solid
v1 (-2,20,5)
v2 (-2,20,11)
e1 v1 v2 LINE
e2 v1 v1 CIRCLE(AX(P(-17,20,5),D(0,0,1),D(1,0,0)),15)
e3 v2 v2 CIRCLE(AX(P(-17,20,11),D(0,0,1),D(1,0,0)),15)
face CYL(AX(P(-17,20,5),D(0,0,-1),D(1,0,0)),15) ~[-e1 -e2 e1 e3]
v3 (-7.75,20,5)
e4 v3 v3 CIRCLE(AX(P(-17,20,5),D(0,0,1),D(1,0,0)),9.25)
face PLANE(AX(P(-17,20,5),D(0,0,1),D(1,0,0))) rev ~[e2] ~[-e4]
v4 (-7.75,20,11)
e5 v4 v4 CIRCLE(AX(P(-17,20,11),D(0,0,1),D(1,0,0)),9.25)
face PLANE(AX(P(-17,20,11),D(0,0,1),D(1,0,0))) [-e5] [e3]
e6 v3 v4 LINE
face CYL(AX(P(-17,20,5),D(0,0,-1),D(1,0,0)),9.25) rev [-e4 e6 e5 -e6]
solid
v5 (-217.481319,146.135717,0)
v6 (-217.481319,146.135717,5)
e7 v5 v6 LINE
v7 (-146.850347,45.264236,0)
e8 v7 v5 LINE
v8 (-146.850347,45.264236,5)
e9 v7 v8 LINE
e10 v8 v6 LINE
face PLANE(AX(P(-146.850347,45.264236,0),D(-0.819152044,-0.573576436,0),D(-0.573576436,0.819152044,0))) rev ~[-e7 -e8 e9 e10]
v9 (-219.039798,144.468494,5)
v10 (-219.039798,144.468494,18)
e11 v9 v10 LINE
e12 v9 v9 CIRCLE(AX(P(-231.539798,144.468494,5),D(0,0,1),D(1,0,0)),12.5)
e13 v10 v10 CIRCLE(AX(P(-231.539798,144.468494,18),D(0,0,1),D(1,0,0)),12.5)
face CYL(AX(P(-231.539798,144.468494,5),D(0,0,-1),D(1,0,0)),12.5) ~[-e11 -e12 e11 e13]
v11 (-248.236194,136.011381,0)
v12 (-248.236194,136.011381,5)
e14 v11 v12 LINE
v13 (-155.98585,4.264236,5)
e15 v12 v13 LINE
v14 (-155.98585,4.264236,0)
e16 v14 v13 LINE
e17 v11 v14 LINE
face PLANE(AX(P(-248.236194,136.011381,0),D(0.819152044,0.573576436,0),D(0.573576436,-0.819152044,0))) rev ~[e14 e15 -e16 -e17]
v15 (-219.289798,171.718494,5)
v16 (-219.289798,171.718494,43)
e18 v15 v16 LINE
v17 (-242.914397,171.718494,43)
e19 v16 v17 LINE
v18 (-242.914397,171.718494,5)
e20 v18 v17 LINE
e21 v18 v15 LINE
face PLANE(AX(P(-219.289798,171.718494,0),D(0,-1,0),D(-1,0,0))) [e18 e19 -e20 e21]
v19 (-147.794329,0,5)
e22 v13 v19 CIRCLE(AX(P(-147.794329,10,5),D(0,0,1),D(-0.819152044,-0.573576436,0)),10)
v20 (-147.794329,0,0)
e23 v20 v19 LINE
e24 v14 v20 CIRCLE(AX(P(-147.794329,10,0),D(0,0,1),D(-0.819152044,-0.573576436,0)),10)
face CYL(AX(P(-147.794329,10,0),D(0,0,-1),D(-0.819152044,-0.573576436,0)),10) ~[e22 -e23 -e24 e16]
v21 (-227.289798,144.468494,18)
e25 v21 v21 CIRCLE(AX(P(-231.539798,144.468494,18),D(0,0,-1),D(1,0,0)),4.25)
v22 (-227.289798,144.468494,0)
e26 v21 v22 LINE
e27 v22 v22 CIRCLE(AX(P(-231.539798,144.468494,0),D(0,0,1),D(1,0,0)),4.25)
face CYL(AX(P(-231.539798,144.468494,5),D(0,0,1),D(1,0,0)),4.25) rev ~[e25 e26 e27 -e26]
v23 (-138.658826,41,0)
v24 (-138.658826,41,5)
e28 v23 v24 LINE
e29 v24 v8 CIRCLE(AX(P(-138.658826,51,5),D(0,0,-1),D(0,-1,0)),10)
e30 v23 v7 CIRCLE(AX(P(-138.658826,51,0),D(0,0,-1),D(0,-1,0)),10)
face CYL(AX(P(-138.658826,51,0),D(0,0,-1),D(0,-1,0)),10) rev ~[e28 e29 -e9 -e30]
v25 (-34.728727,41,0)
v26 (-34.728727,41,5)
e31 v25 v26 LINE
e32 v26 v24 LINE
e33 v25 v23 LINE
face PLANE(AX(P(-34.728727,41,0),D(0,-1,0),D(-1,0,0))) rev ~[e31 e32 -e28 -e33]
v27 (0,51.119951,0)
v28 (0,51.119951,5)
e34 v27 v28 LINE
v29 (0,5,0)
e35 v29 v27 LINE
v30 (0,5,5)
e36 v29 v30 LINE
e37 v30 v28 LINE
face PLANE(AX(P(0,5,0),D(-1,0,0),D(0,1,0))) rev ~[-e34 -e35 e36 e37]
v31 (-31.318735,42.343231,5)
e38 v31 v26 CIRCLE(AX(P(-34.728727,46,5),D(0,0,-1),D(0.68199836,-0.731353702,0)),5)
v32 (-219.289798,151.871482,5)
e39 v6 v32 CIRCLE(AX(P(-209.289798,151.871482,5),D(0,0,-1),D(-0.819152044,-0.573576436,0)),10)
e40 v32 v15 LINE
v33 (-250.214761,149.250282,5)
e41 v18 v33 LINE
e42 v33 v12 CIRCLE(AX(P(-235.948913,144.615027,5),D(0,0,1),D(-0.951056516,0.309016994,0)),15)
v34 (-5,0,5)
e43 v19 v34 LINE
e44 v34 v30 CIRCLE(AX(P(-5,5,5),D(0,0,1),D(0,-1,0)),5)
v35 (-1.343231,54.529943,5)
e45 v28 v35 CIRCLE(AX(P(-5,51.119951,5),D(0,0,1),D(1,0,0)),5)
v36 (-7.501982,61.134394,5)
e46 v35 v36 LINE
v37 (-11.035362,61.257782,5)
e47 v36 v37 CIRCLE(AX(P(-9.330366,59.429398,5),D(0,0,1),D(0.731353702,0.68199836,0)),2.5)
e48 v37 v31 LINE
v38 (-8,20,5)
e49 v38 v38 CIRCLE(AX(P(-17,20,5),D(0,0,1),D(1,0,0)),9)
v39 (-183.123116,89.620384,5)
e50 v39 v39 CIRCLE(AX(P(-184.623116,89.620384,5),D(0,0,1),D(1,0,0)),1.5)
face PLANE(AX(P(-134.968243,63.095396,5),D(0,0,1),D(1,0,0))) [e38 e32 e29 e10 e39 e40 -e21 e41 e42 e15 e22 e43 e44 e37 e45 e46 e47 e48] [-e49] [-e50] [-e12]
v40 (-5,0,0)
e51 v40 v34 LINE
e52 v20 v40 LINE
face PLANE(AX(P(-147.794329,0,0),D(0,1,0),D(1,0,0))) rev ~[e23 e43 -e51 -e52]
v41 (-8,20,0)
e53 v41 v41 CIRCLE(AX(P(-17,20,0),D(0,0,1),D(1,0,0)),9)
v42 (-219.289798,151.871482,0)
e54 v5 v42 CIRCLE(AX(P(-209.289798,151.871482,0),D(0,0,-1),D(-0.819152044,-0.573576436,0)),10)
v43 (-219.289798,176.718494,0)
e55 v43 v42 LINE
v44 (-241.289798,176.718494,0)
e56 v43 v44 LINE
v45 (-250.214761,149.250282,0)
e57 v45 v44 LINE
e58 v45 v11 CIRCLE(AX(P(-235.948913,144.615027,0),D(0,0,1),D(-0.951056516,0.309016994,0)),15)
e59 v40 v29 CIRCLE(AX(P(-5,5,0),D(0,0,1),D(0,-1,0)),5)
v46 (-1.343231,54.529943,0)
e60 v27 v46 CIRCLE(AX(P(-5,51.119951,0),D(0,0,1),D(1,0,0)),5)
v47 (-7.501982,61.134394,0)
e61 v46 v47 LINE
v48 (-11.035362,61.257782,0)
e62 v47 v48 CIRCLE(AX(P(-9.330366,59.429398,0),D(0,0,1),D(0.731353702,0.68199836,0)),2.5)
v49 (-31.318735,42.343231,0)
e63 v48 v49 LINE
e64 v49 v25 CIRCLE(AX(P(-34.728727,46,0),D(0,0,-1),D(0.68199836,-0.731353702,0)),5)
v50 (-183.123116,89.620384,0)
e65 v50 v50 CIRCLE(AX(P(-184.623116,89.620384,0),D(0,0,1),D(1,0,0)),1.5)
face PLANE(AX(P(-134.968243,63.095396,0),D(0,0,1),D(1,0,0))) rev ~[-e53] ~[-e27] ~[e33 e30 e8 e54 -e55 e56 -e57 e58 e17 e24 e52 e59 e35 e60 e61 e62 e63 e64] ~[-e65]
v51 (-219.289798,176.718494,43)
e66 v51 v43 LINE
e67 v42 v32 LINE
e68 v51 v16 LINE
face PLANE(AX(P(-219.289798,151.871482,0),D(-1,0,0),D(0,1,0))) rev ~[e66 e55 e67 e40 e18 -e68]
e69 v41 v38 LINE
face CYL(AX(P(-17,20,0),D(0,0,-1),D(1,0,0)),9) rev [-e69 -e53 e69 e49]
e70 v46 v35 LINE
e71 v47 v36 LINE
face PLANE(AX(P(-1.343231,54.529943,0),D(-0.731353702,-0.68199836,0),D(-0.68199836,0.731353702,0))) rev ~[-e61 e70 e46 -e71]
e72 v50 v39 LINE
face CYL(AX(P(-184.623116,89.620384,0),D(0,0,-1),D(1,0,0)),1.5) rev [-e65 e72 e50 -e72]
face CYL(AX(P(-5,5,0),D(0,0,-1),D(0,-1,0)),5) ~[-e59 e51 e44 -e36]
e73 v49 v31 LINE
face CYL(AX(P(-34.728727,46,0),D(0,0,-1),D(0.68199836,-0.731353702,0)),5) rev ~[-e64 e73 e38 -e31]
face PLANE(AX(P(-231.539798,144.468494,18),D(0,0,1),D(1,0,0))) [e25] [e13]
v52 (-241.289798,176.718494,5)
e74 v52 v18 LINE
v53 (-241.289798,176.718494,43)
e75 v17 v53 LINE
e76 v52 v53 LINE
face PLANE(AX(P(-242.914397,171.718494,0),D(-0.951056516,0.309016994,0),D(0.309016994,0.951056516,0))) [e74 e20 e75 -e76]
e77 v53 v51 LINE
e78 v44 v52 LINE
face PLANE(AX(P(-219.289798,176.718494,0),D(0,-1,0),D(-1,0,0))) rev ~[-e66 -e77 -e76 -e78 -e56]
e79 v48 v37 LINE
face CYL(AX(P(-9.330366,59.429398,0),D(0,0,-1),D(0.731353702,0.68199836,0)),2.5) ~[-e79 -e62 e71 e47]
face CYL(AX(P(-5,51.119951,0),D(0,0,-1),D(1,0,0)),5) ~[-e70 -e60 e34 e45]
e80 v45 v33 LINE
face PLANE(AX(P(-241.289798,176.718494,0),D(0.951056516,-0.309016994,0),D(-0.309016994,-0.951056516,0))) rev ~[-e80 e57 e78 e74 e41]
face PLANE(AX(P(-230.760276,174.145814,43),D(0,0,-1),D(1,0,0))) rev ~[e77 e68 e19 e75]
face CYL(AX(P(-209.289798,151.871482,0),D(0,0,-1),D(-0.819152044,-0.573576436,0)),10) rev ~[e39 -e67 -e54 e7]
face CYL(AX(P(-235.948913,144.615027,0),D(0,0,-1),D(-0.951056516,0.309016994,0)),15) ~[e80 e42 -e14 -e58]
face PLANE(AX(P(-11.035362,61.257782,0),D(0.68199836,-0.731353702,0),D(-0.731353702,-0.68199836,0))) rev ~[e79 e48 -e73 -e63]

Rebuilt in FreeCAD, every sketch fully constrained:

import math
import FreeCAD as App
import Part
import Sketcher

V = App.Vector
Q = App.Units.Quantity


def add_polygon(sketch, points):
    """Adds a closed chain of lines whose ends are joined by coincident constraints."""
    first, n = sketch.GeometryCount, len(points)
    for a, b in zip(points, points[1:] + points[:1]):
        sketch.addGeometry(Part.LineSegment(App.Vector(*a, 0), App.Vector(*b, 0)), False)
    for i in range(n):
        sketch.addConstraint(Sketcher.Constraint("Coincident", first + i, 2, first + (i + 1) % n, 1))

doc = App.newDocument("Part")
body = doc.addObject("PartDesign::Body", "Body")

# Sketch on XY plane
sketch1 = body.newObject("Sketcher::SketchObject", "Sketch")
sketch1.AttachmentSupport = (doc.getObject("XY_Plane"), [""])
sketch1.MapMode = "FlatFace"
sketch1.addGeometry(Part.LineSegment(V(-147.794329, 0, 0), V(-5, 0, 0)), False)
sketch1.addGeometry(Part.ArcOfCircle(Part.Circle(V(-5, 5, 0), V(0, 0, 1), 5), math.radians(-90), math.radians(0)), False)
sketch1.addGeometry(Part.LineSegment(V(0, 5, 0), V(0, 51.119951, 0)), False)
sketch1.addGeometry(Part.ArcOfCircle(Part.Circle(V(-5, 51.119951, 0), V(0, 0, 1), 5), math.radians(0), math.radians(43)), False)
sketch1.addGeometry(Part.LineSegment(V(-1.343231, 54.529943, 0), V(-7.501982, 61.134394, 0)), False)
sketch1.addGeometry(Part.ArcOfCircle(Part.Circle(V(-9.330366, 59.429398, 0), V(0, 0, 1), 2.5), math.radians(43), math.radians(133)), False)
sketch1.addGeometry(Part.LineSegment(V(-11.035362, 61.257782, 0), V(-31.318735, 42.343231, 0)), False)
sketch1.addGeometry(Part.ArcOfCircle(Part.Circle(V(-34.728727, 46, 0), V(0, 0, 1), 5), math.radians(-90), math.radians(-47)), False)
sketch1.addGeometry(Part.LineSegment(V(-34.728727, 41, 0), V(-138.658826, 41, 0)), False)
sketch1.addGeometry(Part.ArcOfCircle(Part.Circle(V(-138.658826, 51, 0), V(0, 0, 1), 10), math.radians(-145), math.radians(-90)), False)
sketch1.addGeometry(Part.LineSegment(V(-146.850347, 45.264236, 0), V(-217.481319, 146.135717, 0)), False)
sketch1.addGeometry(Part.ArcOfCircle(Part.Circle(V(-209.289798, 151.871482, 0), V(0, 0, 1), 10), math.radians(180), math.radians(215)), False)
sketch1.addGeometry(Part.LineSegment(V(-219.289798, 151.871482, 0), V(-219.289798, 176.718494, 0)), False)
sketch1.addGeometry(Part.LineSegment(V(-219.289798, 176.718494, 0), V(-241.289798, 176.718494, 0)), False)
sketch1.addGeometry(Part.LineSegment(V(-241.289798, 176.718494, 0), V(-250.214761, 149.250282, 0)), False)
sketch1.addGeometry(Part.ArcOfCircle(Part.Circle(V(-235.948913, 144.615027, 0), V(0, 0, 1), 15), math.radians(162), math.radians(215)), False)
sketch1.addGeometry(Part.LineSegment(V(-248.236194, 136.011381, 0), V(-155.98585, 4.264236, 0)), False)
sketch1.addGeometry(Part.ArcOfCircle(Part.Circle(V(-147.794329, 10, 0), V(0, 0, 1), 10), math.radians(-145), math.radians(-90)), False)
sketch1.addGeometry(Part.Circle(V(-17, 20, 0), V(0, 0, 1), 9), False)
sketch1.addGeometry(Part.Circle(V(-184.623116, 89.620384, 0), V(0, 0, 1), 1.5), False)
sketch1.addConstraint(Sketcher.Constraint("Tangent", 0, 2, 1, 1))
sketch1.addConstraint(Sketcher.Constraint("Tangent", 1, 2, 2, 1))
sketch1.addConstraint(Sketcher.Constraint("Tangent", 2, 2, 3, 1))
sketch1.addConstraint(Sketcher.Constraint("Tangent", 3, 2, 4, 1))
sketch1.addConstraint(Sketcher.Constraint("Tangent", 4, 2, 5, 1))
sketch1.addConstraint(Sketcher.Constraint("Tangent", 5, 2, 6, 1))
sketch1.addConstraint(Sketcher.Constraint("Tangent", 6, 2, 7, 2))
sketch1.addConstraint(Sketcher.Constraint("Tangent", 7, 1, 8, 1))
sketch1.addConstraint(Sketcher.Constraint("Tangent", 8, 2, 9, 2))
sketch1.addConstraint(Sketcher.Constraint("Tangent", 9, 1, 10, 1))
sketch1.addConstraint(Sketcher.Constraint("Tangent", 10, 2, 11, 2))
sketch1.addConstraint(Sketcher.Constraint("Tangent", 11, 1, 12, 1))
sketch1.addConstraint(Sketcher.Constraint("Coincident", 12, 2, 13, 1))
sketch1.addConstraint(Sketcher.Constraint("Coincident", 13, 2, 14, 1))
sketch1.addConstraint(Sketcher.Constraint("Tangent", 14, 2, 15, 1))
sketch1.addConstraint(Sketcher.Constraint("Tangent", 15, 2, 16, 1))
sketch1.addConstraint(Sketcher.Constraint("Tangent", 16, 2, 17, 1))
sketch1.addConstraint(Sketcher.Constraint("Tangent", 17, 2, 0, 1))
sketch1.addConstraint(Sketcher.Constraint("Horizontal", 0))
sketch1.addConstraint(Sketcher.Constraint("Vertical", 2))
sketch1.addConstraint(Sketcher.Constraint("Horizontal", 8))
sketch1.addConstraint(Sketcher.Constraint("Vertical", 12))
sketch1.addConstraint(Sketcher.Constraint("Horizontal", 13))
sketch1.addConstraint(Sketcher.Constraint("Equal", 1, 3))
sketch1.addConstraint(Sketcher.Constraint("Equal", 3, 7))
sketch1.addConstraint(Sketcher.Constraint("Equal", 9, 11))
sketch1.addConstraint(Sketcher.Constraint("Equal", 11, 17))
sketch1.addConstraint(Sketcher.Constraint("PointOnObject", 0, 2, -1))
sketch1.addConstraint(Sketcher.Constraint("PointOnObject", 1, 2, -2))
sketch1.addConstraint(Sketcher.Constraint("Perpendicular", 4, 6))
sketch1.addConstraint(Sketcher.Constraint("Parallel", 10, 16))
sketch1.addConstraint(Sketcher.Constraint("Diameter", 18, 18.0))
sketch1.addConstraint(Sketcher.Constraint("Diameter", 19, 3.0))
sketch1.addConstraint(Sketcher.Constraint("Radius", 1, 5.0))
sketch1.addConstraint(Sketcher.Constraint("Radius", 9, 10.0))
sketch1.addConstraint(Sketcher.Constraint("Radius", 15, 15.0))
sketch1.addConstraint(Sketcher.Constraint("Radius", 5, 2.5))
sketch1.addConstraint(Sketcher.Constraint("DistanceX", 13, 2, 13, 1, 22.0))
sketch1.addConstraint(Sketcher.Constraint("Angle", 4, Q("133 deg")))
sketch1.addConstraint(Sketcher.Constraint("Angle", 10, Q("125 deg")))
sketch1.addConstraint(Sketcher.Constraint("Angle", 14, Q("-108 deg")))
sketch1.addConstraint(Sketcher.Constraint("DistanceY", -1, 1, 7, 3, 46.0))
sketch1.addConstraint(Sketcher.Constraint("DistanceX", 18, 3, -1, 1, 17.0))
sketch1.addConstraint(Sketcher.Constraint("DistanceY", -1, 1, 18, 3, 20.0))
sketch1.addConstraint(Sketcher.Constraint("DistanceX", 8, 2, 8, 1, 103.9301))
sketch1.addConstraint(Sketcher.Constraint("DistanceX", 0, 1, 0, 2, 142.794329))
sketch1.addConstraint(Sketcher.Constraint("DistanceY", 2, 1, 2, 2, 46.119951))
sketch1.addConstraint(Sketcher.Constraint("DistanceY", -1, 1, 5, 3, 59.429398))
sketch1.addConstraint(Sketcher.Constraint("DistanceX", 11, 3, -1, 1, 209.289798))
sketch1.addConstraint(Sketcher.Constraint("DistanceY", 14, 2, 11, 1, 2.621199))
sketch1.addConstraint(Sketcher.Constraint("DistanceX", 19, 3, 9, 3, 45.96429))
sketch1.addConstraint(Sketcher.Constraint("DistanceY", 9, 1, 19, 3, 44.356148))
pad1 = body.newObject("PartDesign::Pad", "Pad")
pad1.Profile = sketch1
pad1.Length = 5

# Sketch on XY plane
sketch2 = body.newObject("Sketcher::SketchObject", "Sketch001")
sketch2.AttachmentSupport = (doc.getObject("XY_Plane"), [""])
sketch2.MapMode = "FlatFace"
add_polygon(sketch2, [(-242.914397, 171.718494), (-241.289798, 176.718494), (-219.289798, 176.718494), (-219.289798, 171.718494)])  # lines 0-3
sketch2.addConstraint(Sketcher.Constraint("Horizontal", 1))
sketch2.addConstraint(Sketcher.Constraint("Vertical", 2))
sketch2.addConstraint(Sketcher.Constraint("Horizontal", 3))
sketch2.addConstraint(Sketcher.Constraint("DistanceX", 1, 1, 1, 2, 22.0))
sketch2.addConstraint(Sketcher.Constraint("DistanceY", 2, 2, 2, 1, 5.0))
sketch2.addConstraint(Sketcher.Constraint("Angle", 0, Q("72 deg")))
sketch2.addConstraint(Sketcher.Constraint("DistanceX", 0, 2, -1, 1, 241.289798))
sketch2.addConstraint(Sketcher.Constraint("DistanceY", -1, 1, 0, 2, 176.718494))
pad2 = body.newObject("PartDesign::Pad", "Pad001")
pad2.Profile = sketch2
pad2.Length = 43

# Sketch on XY plane
sketch3 = body.newObject("Sketcher::SketchObject", "Sketch002")
sketch3.AttachmentSupport = (doc.getObject("XY_Plane"), [""])
sketch3.MapMode = "FlatFace"
sketch3.AttachmentOffset = App.Placement(V(0, 0, 5), App.Rotation())
sketch3.addGeometry(Part.Circle(V(-231.539798, 144.468494, 0), V(0, 0, 1), 12.5), False)
sketch3.addConstraint(Sketcher.Constraint("Diameter", 0, 25.0))
sketch3.addConstraint(Sketcher.Constraint("DistanceX", 0, 3, -1, 1, 231.539798))
sketch3.addConstraint(Sketcher.Constraint("DistanceY", -1, 1, 0, 3, 144.468494))
pad3 = body.newObject("PartDesign::Pad", "Pad002")
pad3.Profile = sketch3
pad3.Length = 13

# Sketch on XY plane
sketch4 = body.newObject("Sketcher::SketchObject", "Sketch003")
sketch4.AttachmentSupport = (doc.getObject("XY_Plane"), [""])
sketch4.MapMode = "FlatFace"
sketch4.AttachmentOffset = App.Placement(V(0, 0, 5), App.Rotation())
sketch4.addGeometry(Part.Circle(V(-231.539798, 144.468494, 0), V(0, 0, 1), 4.25), False)
sketch4.addConstraint(Sketcher.Constraint("Diameter", 0, 8.5))
sketch4.addConstraint(Sketcher.Constraint("DistanceX", 0, 3, -1, 1, 231.539798))
sketch4.addConstraint(Sketcher.Constraint("DistanceY", -1, 1, 0, 3, 144.468494))
pocket1 = body.newObject("PartDesign::Pocket", "Pocket")
pocket1.Profile = sketch4
pocket1.Type = "ThroughAll"
pocket1.Midplane = True
body2 = doc.addObject("PartDesign::Body", "Body001")

# Sketch on XY plane
sketch5 = body2.newObject("Sketcher::SketchObject", "Sketch004")
sketch5.AttachmentSupport = (doc.getObject("XY_Plane001"), [""])
sketch5.MapMode = "FlatFace"
sketch5.AttachmentOffset = App.Placement(V(0, 0, 5), App.Rotation())
sketch5.addGeometry(Part.Circle(V(-17, 20, 0), V(0, 0, 1), 15), False)
sketch5.addGeometry(Part.Circle(V(-17, 20, 0), V(0, 0, 1), 9.25), False)
sketch5.addConstraint(Sketcher.Constraint("Coincident", 1, 3, 0, 3))
sketch5.addConstraint(Sketcher.Constraint("Diameter", 0, 30.0))
sketch5.addConstraint(Sketcher.Constraint("Diameter", 1, 18.5))
sketch5.addConstraint(Sketcher.Constraint("DistanceX", 0, 3, -1, 1, 17.0))
sketch5.addConstraint(Sketcher.Constraint("DistanceY", -1, 1, 0, 3, 20.0))
pad4 = body2.newObject("PartDesign::Pad", "Pad003")
pad4.Profile = sketch5
pad4.Length = 6

doc.recompute()
